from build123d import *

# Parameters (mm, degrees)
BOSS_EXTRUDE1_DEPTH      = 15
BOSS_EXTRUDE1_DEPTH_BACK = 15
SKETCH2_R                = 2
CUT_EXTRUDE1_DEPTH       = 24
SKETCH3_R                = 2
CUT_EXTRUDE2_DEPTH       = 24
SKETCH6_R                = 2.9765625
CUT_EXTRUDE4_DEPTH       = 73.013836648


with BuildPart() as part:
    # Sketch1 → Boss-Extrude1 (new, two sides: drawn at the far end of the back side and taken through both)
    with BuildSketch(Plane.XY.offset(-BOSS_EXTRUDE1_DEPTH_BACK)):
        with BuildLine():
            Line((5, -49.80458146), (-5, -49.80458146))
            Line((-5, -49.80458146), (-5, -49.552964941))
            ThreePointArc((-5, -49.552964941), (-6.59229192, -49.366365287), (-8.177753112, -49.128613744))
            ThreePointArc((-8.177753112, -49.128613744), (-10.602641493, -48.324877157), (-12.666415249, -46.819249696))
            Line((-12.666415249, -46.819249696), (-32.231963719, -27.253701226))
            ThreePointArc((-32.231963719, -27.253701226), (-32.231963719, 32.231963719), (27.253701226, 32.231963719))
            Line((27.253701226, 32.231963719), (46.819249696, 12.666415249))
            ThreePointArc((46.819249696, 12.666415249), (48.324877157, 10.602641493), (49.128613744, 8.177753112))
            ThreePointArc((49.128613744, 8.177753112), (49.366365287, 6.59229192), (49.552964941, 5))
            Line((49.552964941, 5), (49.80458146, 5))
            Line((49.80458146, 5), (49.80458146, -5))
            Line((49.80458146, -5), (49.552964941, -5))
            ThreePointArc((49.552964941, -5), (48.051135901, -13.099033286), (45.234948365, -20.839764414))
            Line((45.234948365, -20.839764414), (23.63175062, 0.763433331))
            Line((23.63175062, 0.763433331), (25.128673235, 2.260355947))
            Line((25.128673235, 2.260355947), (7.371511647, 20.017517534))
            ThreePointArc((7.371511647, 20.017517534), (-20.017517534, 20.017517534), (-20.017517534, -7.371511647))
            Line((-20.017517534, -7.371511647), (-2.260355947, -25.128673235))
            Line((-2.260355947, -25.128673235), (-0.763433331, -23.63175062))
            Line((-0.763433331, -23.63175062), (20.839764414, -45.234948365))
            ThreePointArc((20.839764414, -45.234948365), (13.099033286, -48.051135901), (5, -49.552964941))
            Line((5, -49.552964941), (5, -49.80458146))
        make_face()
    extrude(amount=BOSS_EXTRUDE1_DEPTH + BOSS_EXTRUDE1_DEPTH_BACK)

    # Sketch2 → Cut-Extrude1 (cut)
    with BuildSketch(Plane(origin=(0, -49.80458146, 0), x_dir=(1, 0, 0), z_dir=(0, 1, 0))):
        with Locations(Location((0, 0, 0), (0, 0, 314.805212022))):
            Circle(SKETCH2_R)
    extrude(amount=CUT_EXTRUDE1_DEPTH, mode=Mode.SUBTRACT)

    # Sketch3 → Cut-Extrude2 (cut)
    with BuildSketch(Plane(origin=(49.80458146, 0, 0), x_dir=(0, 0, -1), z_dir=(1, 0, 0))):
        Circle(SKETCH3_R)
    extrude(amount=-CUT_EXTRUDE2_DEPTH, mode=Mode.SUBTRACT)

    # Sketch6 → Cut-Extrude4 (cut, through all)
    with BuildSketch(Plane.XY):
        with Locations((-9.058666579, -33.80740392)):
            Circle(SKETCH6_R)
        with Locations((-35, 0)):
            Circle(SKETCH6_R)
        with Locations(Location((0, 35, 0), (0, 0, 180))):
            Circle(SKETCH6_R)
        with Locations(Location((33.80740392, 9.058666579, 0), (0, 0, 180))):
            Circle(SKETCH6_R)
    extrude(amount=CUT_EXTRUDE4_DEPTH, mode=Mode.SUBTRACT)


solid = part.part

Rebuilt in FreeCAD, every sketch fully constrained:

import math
import FreeCAD as App
import Part
import Sketcher

V = App.Vector
Q = App.Units.Quantity

doc = App.newDocument("Part")
body = doc.addObject("PartDesign::Body", "Body")

# Sketch on XY plane
sketch1 = body.newObject("Sketcher::SketchObject", "Sketch")
sketch1.AttachmentSupport = (doc.getObject("XY_Plane"), [""])
sketch1.MapMode = "FlatFace"
sketch1.addGeometry(Part.LineSegment(V(-5, -49.8, 0), V(5, -49.8, 0)), False)
sketch1.addGeometry(Part.LineSegment(V(5, -49.8, 0), V(5, -49.55, 0)), False)
sketch1.addGeometry(Part.ArcOfCircle(Part.Circle(V(0, 0, 0), V(0, 0, 1), 49.8), math.radians(-84.24), math.radians(-65.26)), False)
sketch1.addGeometry(Part.LineSegment(V(20.84, -45.23, 0), V(-0.76, -23.63, 0)), False)
sketch1.addGeometry(Part.LineSegment(V(-0.76, -23.63, 0), V(-2.26, -25.13, 0)), False)
sketch1.addGeometry(Part.LineSegment(V(-2.26, -25.13, 0), V(-20.02, -7.37, 0)), False)
sketch1.addGeometry(Part.ArcOfCircle(Part.Circle(V(-6.32, 6.32, 0), V(0, 0, 1), 19.37), math.radians(45), math.radians(225)), False)
sketch1.addGeometry(Part.LineSegment(V(7.37, 20.02, 0), V(25.13, 2.26, 0)), False)
sketch1.addGeometry(Part.LineSegment(V(25.13, 2.26, 0), V(23.63, 0.76, 0)), False)
sketch1.addGeometry(Part.LineSegment(V(23.63, 0.76, 0), V(45.23, -20.84, 0)), False)
sketch1.addGeometry(Part.ArcOfCircle(Part.Circle(V(0, 0, 0), V(0, 0, 1), 49.8), math.radians(-24.74), math.radians(-5.76)), False)
sketch1.addGeometry(Part.LineSegment(V(49.55, -5, 0), V(49.8, -5, 0)), False)
sketch1.addGeometry(Part.LineSegment(V(49.8, -5, 0), V(49.8, 5, 0)), False)
sketch1.addGeometry(Part.LineSegment(V(49.8, 5, 0), V(49.55, 5, 0)), False)
sketch1.addGeometry(Part.ArcOfCircle(Part.Circle(V(0, 0, 0), V(0, 0, 1), 49.8), math.radians(5.76), math.radians(9.45)), False)
sketch1.addGeometry(Part.ArcOfCircle(Part.Circle(V(40.97, 6.82, 0), V(0, 0, 1), 8.27), math.radians(9), math.radians(45)), False)
sketch1.addGeometry(Part.LineSegment(V(46.82, 12.67, 0), V(27.25, 32.23, 0)), False)
sketch1.addGeometry(Part.ArcOfCircle(Part.Circle(V(-2.49, 2.49, 0), V(0, 0, 1), 42.06), math.radians(45), math.radians(225)), False)
sketch1.addGeometry(Part.LineSegment(V(-32.23, -27.25, 0), V(-12.67, -46.82, 0)), False)
sketch1.addGeometry(Part.ArcOfCircle(Part.Circle(V(-6.82, -40.97, 0), V(0, 0, 1), 8.27), math.radians(-135), math.radians(-99)), False)
sketch1.addGeometry(Part.ArcOfCircle(Part.Circle(V(0, 0, 0), V(0, 0, 1), 49.8), math.radians(-99.45), math.radians(-95.76)), False)
sketch1.addGeometry(Part.LineSegment(V(-5, -49.55, 0), V(-5, -49.8, 0)), False)
sketch1.addConstraint(Sketcher.Constraint("Coincident", 0, 2, 1, 1))
sketch1.addConstraint(Sketcher.Constraint("Coincident", 1, 2, 2, 1))
sketch1.addConstraint(Sketcher.Constraint("Coincident", 2, 2, 3, 1))
sketch1.addConstraint(Sketcher.Constraint("Coincident", 3, 2, 4, 1))
sketch1.addConstraint(Sketcher.Constraint("Coincident", 4, 2, 5, 1))
sketch1.addConstraint(Sketcher.Constraint("Tangent", 5, 2, 6, 2))
sketch1.addConstraint(Sketcher.Constraint("Tangent", 6, 1, 7, 1))
sketch1.addConstraint(Sketcher.Constraint("Coincident", 7, 2, 8, 1))
sketch1.addConstraint(Sketcher.Constraint("Coincident", 8, 2, 9, 1))
sketch1.addConstraint(Sketcher.Constraint("Coincident", 9, 2, 10, 1))
sketch1.addConstraint(Sketcher.Constraint("Coincident", 10, 2, 11, 1))
sketch1.addConstraint(Sketcher.Constraint("Coincident", 11, 2, 12, 1))
sketch1.addConstraint(Sketcher.Constraint("Coincident", 12, 2, 13, 1))
sketch1.addConstraint(Sketcher.Constraint("Coincident", 13, 2, 14, 1))
sketch1.addConstraint(Sketcher.Constraint("Tangent", 14, 2, 15, 1))
sketch1.addConstraint(Sketcher.Constraint("Tangent", 15, 2, 16, 1))
sketch1.addConstraint(Sketcher.Constraint("Tangent", 16, 2, 17, 1))
sketch1.addConstraint(Sketcher.Constraint("Tangent", 17, 2, 18, 1))
sketch1.addConstraint(Sketcher.Constraint("Tangent", 18, 2, 19, 1))
sketch1.addConstraint(Sketcher.Constraint("Tangent", 19, 2, 20, 1))
sketch1.addConstraint(Sketcher.Constraint("Coincident", 20, 2, 21, 1))
sketch1.addConstraint(Sketcher.Constraint("Coincident", 21, 2, 0, 1))
sketch1.addConstraint(Sketcher.Constraint("Horizontal", 0))
sketch1.addConstraint(Sketcher.Constraint("Vertical", 1))
sketch1.addConstraint(Sketcher.Constraint("Horizontal", 11))
sketch1.addConstraint(Sketcher.Constraint("Vertical", 12))
sketch1.addConstraint(Sketcher.Constraint("Horizontal", 13))
sketch1.addConstraint(Sketcher.Constraint("Vertical", 21))
sketch1.addConstraint(Sketcher.Constraint("Coincident", 2, 3, -1, 1))
sketch1.addConstraint(Sketcher.Constraint("Coincident", 10, 3, -1, 1))
sketch1.addConstraint(Sketcher.Constraint("Coincident", 14, 3, -1, 1))
sketch1.addConstraint(Sketcher.Constraint("Coincident", 20, 3, -1, 1))
sketch1.addConstraint(Sketcher.Constraint("Equal", 2, 10))
sketch1.addConstraint(Sketcher.Constraint("Equal", 10, 14))
sketch1.addConstraint(Sketcher.Constraint("Equal", 15, 19))
sketch1.addConstraint(Sketcher.Constraint("Equal", 14, 20))
sketch1.addConstraint(Sketcher.Constraint("Perpendicular", 3, 4))
sketch1.addConstraint(Sketcher.Constraint("Perpendicular", 4, 5))
sketch1.addConstraint(Sketcher.Constraint("Parallel", 5, 7))
sketch1.addConstraint(Sketcher.Constraint("Perpendicular", 7, 8))
sketch1.addConstraint(Sketcher.Constraint("Perpendicular", 8, 9))
sketch1.addConstraint(Sketcher.Constraint("Parallel", 9, 16))
sketch1.addConstraint(Sketcher.Constraint("Parallel", 16, 18))
sketch1.addConstraint(Sketcher.Constraint("Horizontal", 1, 2, 20, 2))
sketch1.addConstraint(Sketcher.Constraint("Vertical", 10, 2, 13, 2))
sketch1.addConstraint(Sketcher.Constraint("Equal", 13, 1))
sketch1.addConstraint(Sketcher.Constraint("Equal", 0, 12))
sketch1.addConstraint(Sketcher.Constraint("Equal", 5, 7))
sketch1.addConstraint(Sketcher.Constraint("Equal", 4, 8))
sketch1.addConstraint(Sketcher.Constraint("Equal", 3, 9))
sketch1.addConstraint(Sketcher.Constraint("Equal", 16, 18))
sketch1.addConstraint(Sketcher.Constraint("DistanceX", 0, 1, 0, 2, 10.0))
sketch1.addConstraint(Sketcher.Constraint("Angle", 3, Q("135 deg")))
sketch1.addConstraint(Sketcher.Constraint("Radius", 2, 49.804581))
sketch1.addConstraint(Sketcher.Constraint("Radius", 6, 19.366968))
sketch1.addConstraint(Sketcher.Constraint("Radius", 15, 8.267783))
sketch1.addConstraint(Sketcher.Constraint("Radius", 17, 42.062717))
sketch1.addConstraint(Sketcher.Constraint("DistanceX", -1, 1, 16, 2, 27.253701))
sketch1.addConstraint(Sketcher.Constraint("DistanceY", 18, 2, 3, 2, 23.187499))
sketch1.addConstraint(Sketcher.Constraint("Distance", 4, 2.116968))
sketch1.addConstraint(Sketcher.Constraint("Distance", 5, 25.112419))
sketch1.addConstraint(Sketcher.Constraint("DistanceX", 11, 1, 11, 2, 0.251617))
pad1 = body.newObject("PartDesign::Pad", "Pad")
pad1.Profile = sketch1
pad1.Type = "TwoLengths"
pad1.Length = 15
pad1.Length2 = 15

# Sketch on XZ plane
sketch2 = body.newObject("Sketcher::SketchObject", "Sketch001")
sketch2.AttachmentSupport = (doc.getObject("XZ_Plane"), [""])
sketch2.MapMode = "FlatFace"
sketch2.AttachmentOffset = App.Placement(V(0, 0, 49.804581), App.Rotation())
sketch2.addGeometry(Part.Circle(V(0, 0, 0), V(0, 0, 1), 2), False)
sketch2.addConstraint(Sketcher.Constraint("Coincident", 0, 3, -1, 1))
sketch2.addConstraint(Sketcher.Constraint("Diameter", 0, 4.0))
pocket1 = body.newObject("PartDesign::Pocket", "Pocket")
pocket1.Profile = sketch2
pocket1.Length = 24

# Sketch on YZ plane
sketch3 = body.newObject("Sketcher::SketchObject", "Sketch002")
sketch3.AttachmentSupport = (doc.getObject("YZ_Plane"), [""])
sketch3.MapMode = "FlatFace"
sketch3.AttachmentOffset = App.Placement(V(0, 0, 49.804581), App.Rotation())
sketch3.addGeometry(Part.Circle(V(0, 0, 0), V(0, 0, 1), 2), False)
sketch3.addConstraint(Sketcher.Constraint("Coincident", 0, 3, -1, 1))
sketch3.addConstraint(Sketcher.Constraint("Diameter", 0, 4.0))
pocket2 = body.newObject("PartDesign::Pocket", "Pocket001")
pocket2.Profile = sketch3
pocket2.Length = 24

# Sketch on XY plane
sketch4 = body.newObject("Sketcher::SketchObject", "Sketch003")
sketch4.AttachmentSupport = (doc.getObject("XY_Plane"), [""])
sketch4.MapMode = "FlatFace"
sketch4.addGeometry(Part.Circle(V(-9.1, -33.8, 0), V(0, 0, 1), 3), False)
sketch4.addGeometry(Part.Circle(V(-35, 0, 0), V(0, 0, 1), 3), False)
sketch4.addGeometry(Part.Circle(V(0, 35, 0), V(0, 0, 1), 3), False)
sketch4.addGeometry(Part.Circle(V(33.8, 9.1, 0), V(0, 0, 1), 3), False)
sketch4.addConstraint(Sketcher.Constraint("Equal", 0, 1))
sketch4.addConstraint(Sketcher.Constraint("Equal", 1, 2))
sketch4.addConstraint(Sketcher.Constraint("Equal", 2, 3))
sketch4.addConstraint(Sketcher.Constraint("PointOnObject", 1, 3, -1))
sketch4.addConstraint(Sketcher.Constraint("PointOnObject", 2, 3, -2))
sketch4.addConstraint(Sketcher.Constraint("DistanceX", 1, 3, -1, 1, 35.0))
sketch4.addConstraint(Sketcher.Constraint("DistanceY", -1, 1, 2, 3, 35.0))
sketch4.addConstraint(Sketcher.Constraint("Diameter", 0, 5.953125))
sketch4.addConstraint(Sketcher.Constraint("DistanceX", 0, 3, 3, 3, 42.86607))
sketch4.addConstraint(Sketcher.Constraint("DistanceY", 0, 3, 3, 3, 42.86607))
sketch4.addConstraint(Sketcher.Constraint("DistanceX", 0, 3, -1, 1, 9.058667))
sketch4.addConstraint(Sketcher.Constraint("DistanceY", 0, 3, -1, 1, 33.807404))
pocket3 = body.newObject("PartDesign::Pocket", "Pocket002")
pocket3.Profile = sketch4
pocket3.Type = "ThroughAll"
pocket3.Reversed = True

doc.recompute()
